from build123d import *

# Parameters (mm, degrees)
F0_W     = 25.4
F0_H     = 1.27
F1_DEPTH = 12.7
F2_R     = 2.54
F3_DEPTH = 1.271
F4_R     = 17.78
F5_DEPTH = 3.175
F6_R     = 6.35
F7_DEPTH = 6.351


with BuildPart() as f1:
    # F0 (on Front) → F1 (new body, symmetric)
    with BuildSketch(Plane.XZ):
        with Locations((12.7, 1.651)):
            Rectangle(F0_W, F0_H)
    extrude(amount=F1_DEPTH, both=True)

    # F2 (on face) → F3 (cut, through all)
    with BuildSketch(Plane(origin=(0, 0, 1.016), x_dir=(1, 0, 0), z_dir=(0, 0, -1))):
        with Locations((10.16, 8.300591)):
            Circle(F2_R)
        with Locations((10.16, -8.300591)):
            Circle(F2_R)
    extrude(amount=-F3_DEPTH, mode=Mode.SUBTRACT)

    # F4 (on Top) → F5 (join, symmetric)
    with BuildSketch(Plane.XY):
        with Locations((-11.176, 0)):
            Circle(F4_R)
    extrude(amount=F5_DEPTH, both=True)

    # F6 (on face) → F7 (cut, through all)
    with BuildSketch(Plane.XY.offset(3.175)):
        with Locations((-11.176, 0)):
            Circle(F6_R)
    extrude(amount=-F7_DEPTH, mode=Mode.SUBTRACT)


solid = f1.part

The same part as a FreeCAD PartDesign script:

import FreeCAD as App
import Part
import Sketcher

V = App.Vector
Q = App.Units.Quantity

doc = App.newDocument("Part")
params = doc.addObject("Spreadsheet::Sheet", "Params")
for row, (alias, value) in enumerate([
    ("sketch1_width", "1 in"),
    ("sketch1_height", "0.05 in"),
    ("pad1_length", "1 in"),
    ("sketch2_diameter", "0.2 in"),
    ("sketch3_diameter", "1.4 in"),
    ("pad2_length", "0.25 in"),
    ("sketch4_diameter", "0.5 in"),
], start=1):
    params.set(f"A{row}", alias)
    params.set(f"B{row}", "=" + value)
    params.setAlias(f"B{row}", alias)

body = doc.addObject("PartDesign::Body", "Body")

sketch1 = body.newObject("Sketcher::SketchObject", "Sketch")
sketch1.AttachmentSupport = (doc.getObject("XZ_Plane"), [""])
sketch1.MapMode = "FlatFace"
sketch1.addGeometry([
    Part.LineSegment(V(0, 2.3, 0), V(0, 1, 0)),
    Part.LineSegment(V(0, 1, 0), V(25.4, 1, 0)),
    Part.LineSegment(V(25.4, 1, 0), V(25.4, 2.3, 0)),
    Part.LineSegment(V(25.4, 2.3, 0), V(0, 2.3, 0)),
], False)
sketch1.addConstraint([
    Sketcher.Constraint("Coincident", 0, 2, 1, 1),
    Sketcher.Constraint("Coincident", 1, 2, 2, 1),
    Sketcher.Constraint("Coincident", 2, 2, 3, 1),
    Sketcher.Constraint("Coincident", 3, 2, 0, 1),
    Sketcher.Constraint("Vertical", 0),
    Sketcher.Constraint("Horizontal", 1),
    Sketcher.Constraint("Vertical", 2),
    Sketcher.Constraint("Horizontal", 3),
    Sketcher.Constraint("PointOnObject", 0, 2, -2),
    Sketcher.Constraint("DistanceX", 1, 1, 1, 2, Q("1 in")),
    Sketcher.Constraint("DistanceY", 0, 2, 0, 1, Q("0.05 in")),
    Sketcher.Constraint("DistanceY", -1, 1, 0, 2, Q("0.04 in")),
])
sketch1.setExpression("Constraints[9]", "Params.sketch1_width")
sketch1.setExpression("Constraints[10]", "Params.sketch1_height")
pad1 = body.newObject("PartDesign::Pad", "Pad")
pad1.Profile = sketch1
pad1.setExpression("Length", "Params.pad1_length")
pad1.Midplane = True

sketch2 = body.newObject("Sketcher::SketchObject", "Sketch001")
sketch2.AttachmentSupport = (doc.getObject("XY_Plane"), [""])
sketch2.MapMode = "FlatFace"
sketch2.AttachmentOffset = App.Placement(V(0, 0, 0.04 * 25.4), App.Rotation())
sketch2.addGeometry([
    Part.Circle(V(10.2, -8.3, 0), V(0, 0, 1), 2.5),
    Part.Circle(V(10.2, 8.3, 0), V(0, 0, 1), 2.5),
], False)
sketch2.addConstraint([
    Sketcher.Constraint("Equal", 0, 1),
    Sketcher.Constraint("Symmetric", 0, 3, 1, 3, -1),
    Sketcher.Constraint("Diameter", 0, Q("0.2 in")),
    Sketcher.Constraint("DistanceX", -1, 1, 0, 3, Q("0.4 in")),
    Sketcher.Constraint("DistanceY", 0, 3, -1, 1, 8.300591),
])
sketch2.setExpression("Constraints[2]", "Params.sketch2_diameter")
pocket1 = body.newObject("PartDesign::Pocket", "Pocket")
pocket1.Profile = sketch2
pocket1.Type = "ThroughAll"
pocket1.Reversed = True

sketch3 = body.newObject("Sketcher::SketchObject", "Sketch002")
sketch3.AttachmentSupport = (doc.getObject("XY_Plane"), [""])
sketch3.MapMode = "FlatFace"
sketch3.addGeometry(Part.Circle(V(-11, 0, 0), V(0, 0, 1), 18), False)
sketch3.addConstraint([
    Sketcher.Constraint("PointOnObject", 0, 3, -1),
    Sketcher.Constraint("Diameter", 0, Q("1.4 in")),
    Sketcher.Constraint("DistanceX", 0, 3, -1, 1, Q("0.44 in")),
])
sketch3.setExpression("Constraints[1]", "Params.sketch3_diameter")
pad2 = body.newObject("PartDesign::Pad", "Pad001")
pad2.Profile = sketch3
pad2.setExpression("Length", "Params.pad2_length")
pad2.Midplane = True

sketch4 = body.newObject("Sketcher::SketchObject", "Sketch003")
sketch4.AttachmentSupport = (doc.getObject("XY_Plane"), [""])
sketch4.MapMode = "FlatFace"
sketch4.AttachmentOffset = App.Placement(V(0, 0, 0.125 * 25.4), App.Rotation())
sketch4.addGeometry(Part.Circle(V(-11, 0, 0), V(0, 0, 1), 6), False)
sketch4.addConstraint([
    Sketcher.Constraint("PointOnObject", 0, 3, -1),
    Sketcher.Constraint("Diameter", 0, Q("0.5 in")),
    Sketcher.Constraint("DistanceX", 0, 3, -1, 1, Q("0.44 in")),
])
sketch4.setExpression("Constraints[1]", "Params.sketch4_diameter")
pocket2 = body.newObject("PartDesign::Pocket", "Pocket001")
pocket2.Profile = sketch4
pocket2.Type = "ThroughAll"

doc.recompute()
